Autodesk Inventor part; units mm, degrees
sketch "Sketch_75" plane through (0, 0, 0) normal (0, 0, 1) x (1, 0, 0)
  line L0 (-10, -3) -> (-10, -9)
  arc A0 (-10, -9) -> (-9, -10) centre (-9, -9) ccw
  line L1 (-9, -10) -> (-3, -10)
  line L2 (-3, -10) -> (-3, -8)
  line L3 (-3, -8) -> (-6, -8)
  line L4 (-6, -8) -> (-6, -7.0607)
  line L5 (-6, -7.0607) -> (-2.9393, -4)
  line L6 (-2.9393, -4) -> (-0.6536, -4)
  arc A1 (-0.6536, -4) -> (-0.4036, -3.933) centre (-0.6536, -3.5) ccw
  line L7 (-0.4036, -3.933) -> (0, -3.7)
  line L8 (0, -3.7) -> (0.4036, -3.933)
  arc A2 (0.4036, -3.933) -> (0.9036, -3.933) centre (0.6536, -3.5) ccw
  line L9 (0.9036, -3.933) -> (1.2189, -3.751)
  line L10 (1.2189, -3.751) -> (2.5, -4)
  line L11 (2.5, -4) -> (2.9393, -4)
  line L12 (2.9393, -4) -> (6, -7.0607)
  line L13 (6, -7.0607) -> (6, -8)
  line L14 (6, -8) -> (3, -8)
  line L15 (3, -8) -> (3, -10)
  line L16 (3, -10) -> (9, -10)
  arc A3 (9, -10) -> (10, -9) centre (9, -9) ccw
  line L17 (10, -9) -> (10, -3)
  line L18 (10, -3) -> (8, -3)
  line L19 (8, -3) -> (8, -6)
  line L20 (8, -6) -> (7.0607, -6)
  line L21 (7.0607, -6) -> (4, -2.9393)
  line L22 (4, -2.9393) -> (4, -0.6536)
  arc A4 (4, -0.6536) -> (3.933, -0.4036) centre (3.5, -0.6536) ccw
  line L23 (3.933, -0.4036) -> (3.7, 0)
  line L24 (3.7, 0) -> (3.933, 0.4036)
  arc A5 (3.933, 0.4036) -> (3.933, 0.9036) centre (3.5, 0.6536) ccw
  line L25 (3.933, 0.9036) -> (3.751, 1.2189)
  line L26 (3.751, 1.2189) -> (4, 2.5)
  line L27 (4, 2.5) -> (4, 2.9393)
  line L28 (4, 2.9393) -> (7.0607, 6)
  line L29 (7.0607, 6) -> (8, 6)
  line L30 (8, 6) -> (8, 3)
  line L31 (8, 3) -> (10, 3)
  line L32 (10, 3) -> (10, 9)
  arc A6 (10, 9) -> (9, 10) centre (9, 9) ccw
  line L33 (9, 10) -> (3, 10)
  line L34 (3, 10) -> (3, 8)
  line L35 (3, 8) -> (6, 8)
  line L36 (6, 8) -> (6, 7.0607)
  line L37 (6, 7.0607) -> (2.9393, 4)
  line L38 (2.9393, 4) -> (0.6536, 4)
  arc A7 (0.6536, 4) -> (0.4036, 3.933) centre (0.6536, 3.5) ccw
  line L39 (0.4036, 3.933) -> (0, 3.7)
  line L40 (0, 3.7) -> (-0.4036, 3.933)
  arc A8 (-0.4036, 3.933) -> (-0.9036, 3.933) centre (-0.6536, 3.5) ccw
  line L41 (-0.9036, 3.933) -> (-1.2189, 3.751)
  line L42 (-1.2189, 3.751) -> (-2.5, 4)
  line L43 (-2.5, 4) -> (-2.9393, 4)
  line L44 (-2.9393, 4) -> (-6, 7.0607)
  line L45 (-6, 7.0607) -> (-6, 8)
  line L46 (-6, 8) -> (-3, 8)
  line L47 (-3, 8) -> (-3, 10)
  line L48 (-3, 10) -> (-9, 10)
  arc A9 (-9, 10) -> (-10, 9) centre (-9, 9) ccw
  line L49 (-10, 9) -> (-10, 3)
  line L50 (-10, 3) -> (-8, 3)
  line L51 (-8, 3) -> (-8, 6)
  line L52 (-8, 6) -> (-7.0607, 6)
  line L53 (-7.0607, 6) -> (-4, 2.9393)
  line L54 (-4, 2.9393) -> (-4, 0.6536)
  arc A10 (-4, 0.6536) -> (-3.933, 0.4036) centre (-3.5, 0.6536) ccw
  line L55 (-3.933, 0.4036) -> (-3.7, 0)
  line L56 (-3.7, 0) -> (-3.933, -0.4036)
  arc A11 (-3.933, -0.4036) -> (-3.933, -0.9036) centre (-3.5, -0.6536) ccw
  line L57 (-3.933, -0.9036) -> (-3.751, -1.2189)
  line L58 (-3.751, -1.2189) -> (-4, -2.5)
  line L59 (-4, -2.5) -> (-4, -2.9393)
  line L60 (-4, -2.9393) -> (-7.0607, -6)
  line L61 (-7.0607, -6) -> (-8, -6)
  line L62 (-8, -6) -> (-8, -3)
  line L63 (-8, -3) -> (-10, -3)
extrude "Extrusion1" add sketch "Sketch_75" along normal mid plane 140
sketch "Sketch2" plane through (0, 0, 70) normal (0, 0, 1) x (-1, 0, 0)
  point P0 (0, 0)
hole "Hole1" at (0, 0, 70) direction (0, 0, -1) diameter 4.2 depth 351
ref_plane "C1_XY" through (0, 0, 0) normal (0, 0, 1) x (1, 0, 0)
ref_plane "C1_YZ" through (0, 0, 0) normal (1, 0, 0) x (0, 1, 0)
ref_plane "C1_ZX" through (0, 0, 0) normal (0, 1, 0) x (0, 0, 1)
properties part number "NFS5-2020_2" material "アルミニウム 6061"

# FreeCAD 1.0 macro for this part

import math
import FreeCAD as App
import Part
import Sketcher
from FreeCAD import Vector
Q = App.Units.Quantity

doc = App.newDocument("Part")
body = doc.addObject("PartDesign::Body", "Body")

# Sketch on XY plane
sketch1 = body.newObject("Sketcher::SketchObject", "Sketch")
sketch1.AttachmentSupport = (doc.getObject("XY_Plane"), [""])
sketch1.MapMode = "FlatFace"
sketch1.addGeometry(Part.LineSegment(Vector(-8, -3, 0), Vector(-10, -3, 0)), False)
sketch1.addGeometry(Part.LineSegment(Vector(-10, -3, 0), Vector(-10, -9, 0)), False)
sketch1.addGeometry(Part.ArcOfCircle(Part.Circle(Vector(-9, -9, 0), Vector(0, 0, 1), 1), math.radians(180), math.radians(270)), False)
sketch1.addGeometry(Part.LineSegment(Vector(-9, -10, 0), Vector(-3, -10, 0)), False)
sketch1.addGeometry(Part.LineSegment(Vector(-3, -10, 0), Vector(-3, -8, 0)), False)
sketch1.addGeometry(Part.LineSegment(Vector(-3, -8, 0), Vector(-6, -8, 0)), False)
sketch1.addGeometry(Part.LineSegment(Vector(-6, -8, 0), Vector(-6, -7.06, 0)), False)
sketch1.addGeometry(Part.LineSegment(Vector(-6, -7.06, 0), Vector(-2.94, -4, 0)), False)
sketch1.addGeometry(Part.LineSegment(Vector(-2.94, -4, 0), Vector(-0.65, -4, 0)), False)
sketch1.addGeometry(Part.ArcOfCircle(Part.Circle(Vector(-0.65, -3.5, 0), Vector(0, 0, 1), 0.5), math.radians(-90), math.radians(-60)), False)
sketch1.addGeometry(Part.LineSegment(Vector(-0.4, -3.93, 0), Vector(0, -3.7, 0)), False)
sketch1.addGeometry(Part.LineSegment(Vector(0, -3.7, 0), Vector(0.4, -3.93, 0)), False)
sketch1.addGeometry(Part.ArcOfCircle(Part.Circle(Vector(0.65, -3.5, 0), Vector(0, 0, 1), 0.5), math.radians(-120), math.radians(-60)), False)
sketch1.addGeometry(Part.LineSegment(Vector(0.9, -3.93, 0), Vector(1.22, -3.75, 0)), False)
sketch1.addGeometry(Part.LineSegment(Vector(1.22, -3.75, 0), Vector(2.5, -4, 0)), False)
sketch1.addGeometry(Part.LineSegment(Vector(2.5, -4, 0), Vector(2.94, -4, 0)), False)
sketch1.addGeometry(Part.LineSegment(Vector(2.94, -4, 0), Vector(6, -7.06, 0)), False)
sketch1.addGeometry(Part.LineSegment(Vector(6, -7.06, 0), Vector(6, -8, 0)), False)
sketch1.addGeometry(Part.LineSegment(Vector(6, -8, 0), Vector(3, -8, 0)), False)
sketch1.addGeometry(Part.LineSegment(Vector(3, -8, 0), Vector(3, -10, 0)), False)
sketch1.addGeometry(Part.LineSegment(Vector(3, -10, 0), Vector(9, -10, 0)), False)
sketch1.addGeometry(Part.ArcOfCircle(Part.Circle(Vector(9, -9, 0), Vector(0, 0, 1), 1), math.radians(-90), math.radians(0)), False)
sketch1.addGeometry(Part.LineSegment(Vector(10, -9, 0), Vector(10, -3, 0)), False)
sketch1.addGeometry(Part.LineSegment(Vector(10, -3, 0), Vector(8, -3, 0)), False)
sketch1.addGeometry(Part.LineSegment(Vector(8, -3, 0), Vector(8, -6, 0)), False)
sketch1.addGeometry(Part.LineSegment(Vector(8, -6, 0), Vector(7.06, -6, 0)), False)
sketch1.addGeometry(Part.LineSegment(Vector(7.06, -6, 0), Vector(4, -2.94, 0)), False)
sketch1.addGeometry(Part.LineSegment(Vector(4, -2.94, 0), Vector(4, -0.65, 0)), False)
sketch1.addGeometry(Part.ArcOfCircle(Part.Circle(Vector(3.5, -0.65, 0), Vector(0, 0, 1), 0.5), math.radians(0), math.radians(30)), False)
sketch1.addGeometry(Part.LineSegment(Vector(3.93, -0.4, 0), Vector(3.7, 0, 0)), False)
sketch1.addGeometry(Part.LineSegment(Vector(3.7, 0, 0), Vector(3.93, 0.4, 0)), False)
sketch1.addGeometry(Part.ArcOfCircle(Part.Circle(Vector(3.5, 0.65, 0), Vector(0, 0, 1), 0.5), math.radians(-30), math.radians(30)), False)
sketch1.addGeometry(Part.LineSegment(Vector(3.93, 0.9, 0), Vector(3.75, 1.22, 0)), False)
sketch1.addGeometry(Part.LineSegment(Vector(3.75, 1.22, 0), Vector(4, 2.5, 0)), False)
sketch1.addGeometry(Part.LineSegment(Vector(4, 2.5, 0), Vector(4, 2.94, 0)), False)
sketch1.addGeometry(Part.LineSegment(Vector(4, 2.94, 0), Vector(7.06, 6, 0)), False)
sketch1.addGeometry(Part.LineSegment(Vector(7.06, 6, 0), Vector(8, 6, 0)), False)
sketch1.addGeometry(Part.LineSegment(Vector(8, 6, 0), Vector(8, 3, 0)), False)
sketch1.addGeometry(Part.LineSegment(Vector(8, 3, 0), Vector(10, 3, 0)), False)
sketch1.addGeometry(Part.LineSegment(Vector(10, 3, 0), Vector(10, 9, 0)), False)
sketch1.addGeometry(Part.ArcOfCircle(Part.Circle(Vector(9, 9, 0), Vector(0, 0, 1), 1), math.radians(0), math.radians(90)), False)
sketch1.addGeometry(Part.LineSegment(Vector(9, 10, 0), Vector(3, 10, 0)), False)
sketch1.addGeometry(Part.LineSegment(Vector(3, 10, 0), Vector(3, 8, 0)), False)
sketch1.addGeometry(Part.LineSegment(Vector(3, 8, 0), Vector(6, 8, 0)), False)
sketch1.addGeometry(Part.LineSegment(Vector(6, 8, 0), Vector(6, 7.06, 0)), False)
sketch1.addGeometry(Part.LineSegment(Vector(6, 7.06, 0), Vector(2.94, 4, 0)), False)
sketch1.addGeometry(Part.LineSegment(Vector(2.94, 4, 0), Vector(0.65, 4, 0)), False)
sketch1.addGeometry(Part.ArcOfCircle(Part.Circle(Vector(0.65, 3.5, 0), Vector(0, 0, 1), 0.5), math.radians(90), math.radians(120)), False)
sketch1.addGeometry(Part.LineSegment(Vector(0.4, 3.93, 0), Vector(0, 3.7, 0)), False)
sketch1.addGeometry(Part.LineSegment(Vector(0, 3.7, 0), Vector(-0.4, 3.93, 0)), False)
sketch1.addGeometry(Part.ArcOfCircle(Part.Circle(Vector(-0.65, 3.5, 0), Vector(0, 0, 1), 0.5), math.radians(60), math.radians(120)), False)
sketch1.addGeometry(Part.LineSegment(Vector(-0.9, 3.93, 0), Vector(-1.22, 3.75, 0)), False)
sketch1.addGeometry(Part.LineSegment(Vector(-1.22, 3.75, 0), Vector(-2.5, 4, 0)), False)
sketch1.addGeometry(Part.LineSegment(Vector(-2.5, 4, 0), Vector(-2.94, 4, 0)), False)
sketch1.addGeometry(Part.LineSegment(Vector(-2.94, 4, 0), Vector(-6, 7.06, 0)), False)
sketch1.addGeometry(Part.LineSegment(Vector(-6, 7.06, 0), Vector(-6, 8, 0)), False)
sketch1.addGeometry(Part.LineSegment(Vector(-6, 8, 0), Vector(-3, 8, 0)), False)
sketch1.addGeometry(Part.LineSegment(Vector(-3, 8, 0), Vector(-3, 10, 0)), False)
sketch1.addGeometry(Part.LineSegment(Vector(-3, 10, 0), Vector(-9, 10, 0)), False)
sketch1.addGeometry(Part.ArcOfCircle(Part.Circle(Vector(-9, 9, 0), Vector(0, 0, 1), 1), math.radians(90), math.radians(180)), False)
sketch1.addGeometry(Part.LineSegment(Vector(-10, 9, 0), Vector(-10, 3, 0)), False)
sketch1.addGeometry(Part.LineSegment(Vector(-10, 3, 0), Vector(-8, 3, 0)), False)
sketch1.addGeometry(Part.LineSegment(Vector(-8, 3, 0), Vector(-8, 6, 0)), False)
sketch1.addGeometry(Part.LineSegment(Vector(-8, 6, 0), Vector(-7.06, 6, 0)), False)
sketch1.addGeometry(Part.LineSegment(Vector(-7.06, 6, 0), Vector(-4, 2.94, 0)), False)
sketch1.addGeometry(Part.LineSegment(Vector(-4, 2.94, 0), Vector(-4, 0.65, 0)), False)
sketch1.addGeometry(Part.ArcOfCircle(Part.Circle(Vector(-3.5, 0.65, 0), Vector(0, 0, 1), 0.5), math.radians(180), math.radians(210)), False)
sketch1.addGeometry(Part.LineSegment(Vector(-3.93, 0.4, 0), Vector(-3.7, 0, 0)), False)
sketch1.addGeometry(Part.LineSegment(Vector(-3.7, 0, 0), Vector(-3.93, -0.4, 0)), False)
sketch1.addGeometry(Part.ArcOfCircle(Part.Circle(Vector(-3.5, -0.65, 0), Vector(0, 0, 1), 0.5), math.radians(150), math.radians(210)), False)
sketch1.addGeometry(Part.LineSegment(Vector(-3.93, -0.9, 0), Vector(-3.75, -1.22, 0)), False)
sketch1.addGeometry(Part.LineSegment(Vector(-3.75, -1.22, 0), Vector(-4, -2.5, 0)), False)
sketch1.addGeometry(Part.LineSegment(Vector(-4, -2.5, 0), Vector(-4, -2.94, 0)), False)
sketch1.addGeometry(Part.LineSegment(Vector(-4, -2.94, 0), Vector(-7.06, -6, 0)), False)
sketch1.addGeometry(Part.LineSegment(Vector(-7.06, -6, 0), Vector(-8, -6, 0)), False)
sketch1.addGeometry(Part.LineSegment(Vector(-8, -6, 0), Vector(-8, -3, 0)), False)
sketch1.addConstraint(Sketcher.Constraint("Coincident", 0, 2, 1, 1))
sketch1.addConstraint(Sketcher.Constraint("Tangent", 1, 2, 2, 1))
sketch1.addConstraint(Sketcher.Constraint("Tangent", 2, 2, 3, 1))
sketch1.addConstraint(Sketcher.Constraint("Coincident", 3, 2, 4, 1))
sketch1.addConstraint(Sketcher.Constraint("Coincident", 4, 2, 5, 1))
sketch1.addConstraint(Sketcher.Constraint("Coincident", 5, 2, 6, 1))
sketch1.addConstraint(Sketcher.Constraint("Coincident", 6, 2, 7, 1))
sketch1.addConstraint(Sketcher.Constraint("Coincident", 7, 2, 8, 1))
sketch1.addConstraint(Sketcher.Constraint("Tangent", 8, 2, 9, 1))
sketch1.addConstraint(Sketcher.Constraint("Tangent", 9, 2, 10, 1))
sketch1.addConstraint(Sketcher.Constraint("Coincident", 10, 2, 11, 1))
sketch1.addConstraint(Sketcher.Constraint("Tangent", 11, 2, 12, 1))
sketch1.addConstraint(Sketcher.Constraint("Tangent", 12, 2, 13, 1))
sketch1.addConstraint(Sketcher.Constraint("Coincident", 13, 2, 14, 1))
sketch1.addConstraint(Sketcher.Constraint("Coincident", 14, 2, 15, 1))
sketch1.addConstraint(Sketcher.Constraint("Coincident", 15, 2, 16, 1))
sketch1.addConstraint(Sketcher.Constraint("Coincident", 16, 2, 17, 1))
sketch1.addConstraint(Sketcher.Constraint("Coincident", 17, 2, 18, 1))
sketch1.addConstraint(Sketcher.Constraint("Coincident", 18, 2, 19, 1))
sketch1.addConstraint(Sketcher.Constraint("Coincident", 19, 2, 20, 1))
sketch1.addConstraint(Sketcher.Constraint("Tangent", 20, 2, 21, 1))
sketch1.addConstraint(Sketcher.Constraint("Tangent", 21, 2, 22, 1))
sketch1.addConstraint(Sketcher.Constraint("Coincident", 22, 2, 23, 1))
sketch1.addConstraint(Sketcher.Constraint("Coincident", 23, 2, 24, 1))
sketch1.addConstraint(Sketcher.Constraint("Coincident", 24, 2, 25, 1))
sketch1.addConstraint(Sketcher.Constraint("Coincident", 25, 2, 26, 1))
sketch1.addConstraint(Sketcher.Constraint("Coincident", 26, 2, 27, 1))
sketch1.addConstraint(Sketcher.Constraint("Tangent", 27, 2, 28, 1))
sketch1.addConstraint(Sketcher.Constraint("Tangent", 28, 2, 29, 1))
sketch1.addConstraint(Sketcher.Constraint("Coincident", 29, 2, 30, 1))
sketch1.addConstraint(Sketcher.Constraint("Tangent", 30, 2, 31, 1))
sketch1.addConstraint(Sketcher.Constraint("Tangent", 31, 2, 32, 1))
sketch1.addConstraint(Sketcher.Constraint("Coincident", 32, 2, 33, 1))
sketch1.addConstraint(Sketcher.Constraint("Coincident", 33, 2, 34, 1))
sketch1.addConstraint(Sketcher.Constraint("Coincident", 34, 2, 35, 1))
sketch1.addConstraint(Sketcher.Constraint("Coincident", 35, 2, 36, 1))
sketch1.addConstraint(Sketcher.Constraint("Coincident", 36, 2, 37, 1))
sketch1.addConstraint(Sketcher.Constraint("Coincident", 37, 2, 38, 1))
sketch1.addConstraint(Sketcher.Constraint("Coincident", 38, 2, 39, 1))
sketch1.addConstraint(Sketcher.Constraint("Tangent", 39, 2, 40, 1))
sketch1.addConstraint(Sketcher.Constraint("Tangent", 40, 2, 41, 1))
sketch1.addConstraint(Sketcher.Constraint("Coincident", 41, 2, 42, 1))
sketch1.addConstraint(Sketcher.Constraint("Coincident", 42, 2, 43, 1))
sketch1.addConstraint(Sketcher.Constraint("Coincident", 43, 2, 44, 1))
sketch1.addConstraint(Sketcher.Constraint("Coincident", 44, 2, 45, 1))
sketch1.addConstraint(Sketcher.Constraint("Coincident", 45, 2, 46, 1))
sketch1.addConstraint(Sketcher.Constraint("Tangent", 46, 2, 47, 1))
sketch1.addConstraint(Sketcher.Constraint("Tangent", 47, 2, 48, 1))
sketch1.addConstraint(Sketcher.Constraint("Coincident", 48, 2, 49, 1))
sketch1.addConstraint(Sketcher.Constraint("Tangent", 49, 2, 50, 1))
sketch1.addConstraint(Sketcher.Constraint("Tangent", 50, 2, 51, 1))
sketch1.addConstraint(Sketcher.Constraint("Coincident", 51, 2, 52, 1))
sketch1.addConstraint(Sketcher.Constraint("Coincident", 52, 2, 53, 1))
sketch1.addConstraint(Sketcher.Constraint("Coincident", 53, 2, 54, 1))
sketch1.addConstraint(Sketcher.Constraint("Coincident", 54, 2, 55, 1))
sketch1.addConstraint(Sketcher.Constraint("Coincident", 55, 2, 56, 1))
sketch1.addConstraint(Sketcher.Constraint("Coincident", 56, 2, 57, 1))
sketch1.addConstraint(Sketcher.Constraint("Coincident", 57, 2, 58, 1))
sketch1.addConstraint(Sketcher.Constraint("Tangent", 58, 2, 59, 1))
sketch1.addConstraint(Sketcher.Constraint("Tangent", 59, 2, 60, 1))
sketch1.addConstraint(Sketcher.Constraint("Coincident", 60, 2, 61, 1))
sketch1.addConstraint(Sketcher.Constraint("Coincident", 61, 2, 62, 1))
sketch1.addConstraint(Sketcher.Constraint("Coincident", 62, 2, 63, 1))
sketch1.addConstraint(Sketcher.Constraint("Coincident", 63, 2, 64, 1))
sketch1.addConstraint(Sketcher.Constraint("Coincident", 64, 2, 65, 1))
sketch1.addConstraint(Sketcher.Constraint("Tangent", 65, 2, 66, 1))
sketch1.addConstraint(Sketcher.Constraint("Tangent", 66, 2, 67, 1))
sketch1.addConstraint(Sketcher.Constraint("Coincident", 67, 2, 68, 1))
sketch1.addConstraint(Sketcher.Constraint("Tangent", 68, 2, 69, 1))
sketch1.addConstraint(Sketcher.Constraint("Tangent", 69, 2, 70, 1))
sketch1.addConstraint(Sketcher.Constraint("Coincident", 70, 2, 71, 1))
sketch1.addConstraint(Sketcher.Constraint("Coincident", 71, 2, 72, 1))
sketch1.addConstraint(Sketcher.Constraint("Coincident", 72, 2, 73, 1))
sketch1.addConstraint(Sketcher.Constraint("Coincident", 73, 2, 74, 1))
sketch1.addConstraint(Sketcher.Constraint("Coincident", 74, 2, 75, 1))
sketch1.addConstraint(Sketcher.Constraint("Coincident", 75, 2, 0, 1))
sketch1.addConstraint(Sketcher.Constraint("Horizontal", 0))
sketch1.addConstraint(Sketcher.Constraint("Vertical", 1))
sketch1.addConstraint(Sketcher.Constraint("Horizontal", 3))
sketch1.addConstraint(Sketcher.Constraint("Vertical", 4))
sketch1.addConstraint(Sketcher.Constraint("Horizontal", 5))
sketch1.addConstraint(Sketcher.Constraint("Vertical", 6))
sketch1.addConstraint(Sketcher.Constraint("Horizontal", 8))
sketch1.addConstraint(Sketcher.Constraint("Horizontal", 15))
sketch1.addConstraint(Sketcher.Constraint("Vertical", 17))
sketch1.addConstraint(Sketcher.Constraint("Horizontal", 18))
sketch1.addConstraint(Sketcher.Constraint("Vertical", 19))
sketch1.addConstraint(Sketcher.Constraint("Horizontal", 20))
sketch1.addConstraint(Sketcher.Constraint("Vertical", 22))
sketch1.addConstraint(Sketcher.Constraint("Horizontal", 23))
sketch1.addConstraint(Sketcher.Constraint("Vertical", 24))
sketch1.addConstraint(Sketcher.Constraint("Horizontal", 25))
sketch1.addConstraint(Sketcher.Constraint("Vertical", 27))
sketch1.addConstraint(Sketcher.Constraint("Vertical", 34))
sketch1.addConstraint(Sketcher.Constraint("Horizontal", 36))
sketch1.addConstraint(Sketcher.Constraint("Vertical", 37))
sketch1.addConstraint(Sketcher.Constraint("Horizontal", 38))
sketch1.addConstraint(Sketcher.Constraint("Vertical", 39))
sketch1.addConstraint(Sketcher.Constraint("Horizontal", 41))
sketch1.addConstraint(Sketcher.Constraint("Vertical", 42))
sketch1.addConstraint(Sketcher.Constraint("Horizontal", 43))
sketch1.addConstraint(Sketcher.Constraint("Vertical", 44))
sketch1.addConstraint(Sketcher.Constraint("Horizontal", 46))
sketch1.addConstraint(Sketcher.Constraint("Horizontal", 53))
sketch1.addConstraint(Sketcher.Constraint("Vertical", 55))
sketch1.addConstraint(Sketcher.Constraint("Horizontal", 56))
sketch1.addConstraint(Sketcher.Constraint("Vertical", 57))
sketch1.addConstraint(Sketcher.Constraint("Horizontal", 58))
sketch1.addConstraint(Sketcher.Constraint("Vertical", 60))
sketch1.addConstraint(Sketcher.Constraint("Horizontal", 61))
sketch1.addConstraint(Sketcher.Constraint("Vertical", 62))
sketch1.addConstraint(Sketcher.Constraint("Horizontal", 63))
sketch1.addConstraint(Sketcher.Constraint("Vertical", 65))
sketch1.addConstraint(Sketcher.Constraint("Vertical", 72))
sketch1.addConstraint(Sketcher.Constraint("Horizontal", 74))
sketch1.addConstraint(Sketcher.Constraint("Vertical", 75))
sketch1.addConstraint(Sketcher.Constraint("Equal", 9, 12))
sketch1.addConstraint(Sketcher.Constraint("Equal", 2, 21))
sketch1.addConstraint(Sketcher.Constraint("Equal", 12, 28))
sketch1.addConstraint(Sketcher.Constraint("Equal", 28, 31))
sketch1.addConstraint(Sketcher.Constraint("Equal", 21, 40))
sketch1.addConstraint(Sketcher.Constraint("Equal", 31, 47))
sketch1.addConstraint(Sketcher.Constraint("Equal", 47, 50))
sketch1.addConstraint(Sketcher.Constraint("Equal", 40, 59))
sketch1.addConstraint(Sketcher.Constraint("Equal", 50, 66))
sketch1.addConstraint(Sketcher.Constraint("Equal", 66, 69))
sketch1.addConstraint(Sketcher.Constraint("Symmetric", 2, 3, 40, 3, -1, 1))
sketch1.addConstraint(Sketcher.Constraint("Symmetric", 9, 3, 47, 3, -1, 1))
sketch1.addConstraint(Sketcher.Constraint("Symmetric", 12, 3, 50, 3, -1, 1))
sketch1.addConstraint(Sketcher.Constraint("Symmetric", 21, 3, 59, 3, -1, 1))
sketch1.addConstraint(Sketcher.Constraint("Symmetric", 28, 3, 66, 3, -1, 1))
sketch1.addConstraint(Sketcher.Constraint("Symmetric", 31, 3, 69, 3, -1, 1))
sketch1.addConstraint(Sketcher.Constraint("Symmetric", 4, 2, 42, 2, -1, 1))
sketch1.addConstraint(Sketcher.Constraint("Symmetric", 6, 2, 44, 2, -1, 1))
sketch1.addConstraint(Sketcher.Constraint("Symmetric", 10, 2, 48, 2, -1, 1))
sketch1.addConstraint(Sketcher.Constraint("Symmetric", 13, 2, 51, 2, -1, 1))
sketch1.addConstraint(Sketcher.Constraint("Symmetric", 14, 2, 52, 2, -1, 1))
sketch1.addConstraint(Sketcher.Constraint("Symmetric", 16, 2, 54, 2, -1, 1))
sketch1.addConstraint(Sketcher.Constraint("Symmetric", 18, 2, 56, 2, -1, 1))
sketch1.addConstraint(Sketcher.Constraint("Symmetric", 23, 2, 61, 2, -1, 1))
sketch1.addConstraint(Sketcher.Constraint("Symmetric", 25, 2, 63, 2, -1, 1))
sketch1.addConstraint(Sketcher.Constraint("Symmetric", 29, 2, 67, 2, -1, 1))
sketch1.addConstraint(Sketcher.Constraint("Symmetric", 32, 2, 70, 2, -1, 1))
sketch1.addConstraint(Sketcher.Constraint("Symmetric", 33, 2, 71, 2, -1, 1))
sketch1.addConstraint(Sketcher.Constraint("Symmetric", 35, 2, 73, 2, -1, 1))
sketch1.addConstraint(Sketcher.Constraint("Symmetric", 37, 2, 75, 2, -1, 1))
sketch1.addConstraint(Sketcher.Constraint("Symmetric", 9, 3, 12, 3, -2))
sketch1.addConstraint(Sketcher.Constraint("Symmetric", 2, 3, 21, 3, -2))
sketch1.addConstraint(Sketcher.Constraint("Symmetric", 31, 3, 66, 3, -2))
sketch1.addConstraint(Sketcher.Constraint("Symmetric", 7, 2, 15, 2, -2))
sketch1.addConstraint(Sketcher.Constraint("Symmetric", 6, 2, 16, 2, -2))
sketch1.addConstraint(Sketcher.Constraint("Symmetric", 4, 2, 18, 2, -2))
sketch1.addConstraint(Sketcher.Constraint("Symmetric", 37, 2, 61, 2, -2))
sketch1.addConstraint(Sketcher.Constraint("Symmetric", 35, 2, 63, 2, -2))
sketch1.addConstraint(Sketcher.Constraint("Symmetric", 34, 2, 64, 2, -2))
sketch1.addConstraint(Sketcher.Constraint("PointOnObject", 10, 2, -2))
sketch1.addConstraint(Sketcher.Constraint("PointOnObject", 29, 2, -1))
sketch1.addConstraint(Sketcher.Constraint("Parallel", 10, 13))
sketch1.addConstraint(Sketcher.Constraint("Perpendicular", 7, 16))
sketch1.addConstraint(Sketcher.Constraint("Parallel", 16, 26))
sketch1.addConstraint(Sketcher.Constraint("Perpendicular", 13, 29))
sketch1.addConstraint(Sketcher.Constraint("Parallel", 29, 32))
sketch1.addConstraint(Sketcher.Constraint("Perpendicular", 14, 33))
sketch1.addConstraint(Sketcher.Constraint("Perpendicular", 26, 35))
sketch1.addConstraint(Sketcher.Constraint("Parallel", 35, 45))
sketch1.addConstraint(Sketcher.Constraint("Perpendicular", 45, 54))
sketch1.addConstraint(Sketcher.Constraint("Perpendicular", 64, 73))
sketch1.addConstraint(Sketcher.Constraint("Equal", 58, 1))
sketch1.addConstraint(Sketcher.Constraint("Equal", 61, 4))
sketch1.addConstraint(Sketcher.Constraint("Equal", 74, 6))
sketch1.addConstraint(Sketcher.Constraint("Equal", 56, 24))
sketch1.addConstraint(Sketcher.Constraint("Equal", 46, 27))
sketch1.addConstraint(Sketcher.Constraint("Equal", 53, 34))
sketch1.addConstraint(Sketcher.Constraint("Equal", 16, 26))
sketch1.addConstraint(Sketcher.Constraint("Equal", 11, 29))
sketch1.addConstraint(Sketcher.Constraint("Radius", 2, Q("1 mm")))
sketch1.addConstraint(Sketcher.Constraint("Radius", 9, Q("0.5 mm")))
sketch1.addConstraint(Sketcher.Constraint("DistanceX", 0, 2, 0, 1, Q("2 mm")))
sketch1.addConstraint(Sketcher.Constraint("DistanceX", 3, 1, 3, 2, Q("6 mm")))
sketch1.addConstraint(Sketcher.Constraint("DistanceX", 5, 2, 5, 1, Q("3 mm")))
sketch1.addConstraint(Sketcher.Constraint("Angle", 14, Q("-10.999 deg")))
sketch1.addConstraint(Sketcher.Constraint("DistanceX", 2, 3, -1, 1, Q("9 mm")))
sketch1.addConstraint(Sketcher.Constraint("DistanceY", 7, 2, -1, 1, Q("4 mm")))
sketch1.addConstraint(Sketcher.Constraint("DistanceY", 10, 2, -1, 1, Q("3.7 mm")))
sketch1.addConstraint(Sketcher.Constraint("DistanceX", -1, 1, 14, 2, Q("2.5 mm")))
sketch1.addConstraint(Sketcher.Constraint("Distance", 10, Q("0.466 mm")))
sketch1.addConstraint(Sketcher.Constraint("DistanceX", 8, 1, 8, 2, Q("2.2857 mm")))
pad1 = body.newObject("PartDesign::Pad", "Pad")
pad1.Profile = sketch1
pad1.Length = 140
pad1.Midplane = True

# Sketch on XY plane
sketch2 = body.newObject("Sketcher::SketchObject", "Sketch001")
sketch2.AttachmentSupport = (doc.getObject("XY_Plane"), [""])
sketch2.MapMode = "FlatFace"
sketch2.AttachmentOffset = App.Placement(Vector(0, 0, 70), App.Rotation())
sketch2.addGeometry(Part.Circle(Vector(0, 0, 0), Vector(0, 0, 1), 2.1), False)
sketch2.addConstraint(Sketcher.Constraint("Coincident", 0, 3, -1, 1))
sketch2.addConstraint(Sketcher.Constraint("Diameter", 0, Q("4.2 mm")))
doc.recompute()
hole = body.newObject("PartDesign::Hole", "Hole")
hole.Profile = sketch2
hole.ThreadType = "None"
hole.Diameter = 4.2
hole.DepthType = "Dimension"
hole.Depth = 351
hole.DrillPoint = "Flat"

doc.recompute()
